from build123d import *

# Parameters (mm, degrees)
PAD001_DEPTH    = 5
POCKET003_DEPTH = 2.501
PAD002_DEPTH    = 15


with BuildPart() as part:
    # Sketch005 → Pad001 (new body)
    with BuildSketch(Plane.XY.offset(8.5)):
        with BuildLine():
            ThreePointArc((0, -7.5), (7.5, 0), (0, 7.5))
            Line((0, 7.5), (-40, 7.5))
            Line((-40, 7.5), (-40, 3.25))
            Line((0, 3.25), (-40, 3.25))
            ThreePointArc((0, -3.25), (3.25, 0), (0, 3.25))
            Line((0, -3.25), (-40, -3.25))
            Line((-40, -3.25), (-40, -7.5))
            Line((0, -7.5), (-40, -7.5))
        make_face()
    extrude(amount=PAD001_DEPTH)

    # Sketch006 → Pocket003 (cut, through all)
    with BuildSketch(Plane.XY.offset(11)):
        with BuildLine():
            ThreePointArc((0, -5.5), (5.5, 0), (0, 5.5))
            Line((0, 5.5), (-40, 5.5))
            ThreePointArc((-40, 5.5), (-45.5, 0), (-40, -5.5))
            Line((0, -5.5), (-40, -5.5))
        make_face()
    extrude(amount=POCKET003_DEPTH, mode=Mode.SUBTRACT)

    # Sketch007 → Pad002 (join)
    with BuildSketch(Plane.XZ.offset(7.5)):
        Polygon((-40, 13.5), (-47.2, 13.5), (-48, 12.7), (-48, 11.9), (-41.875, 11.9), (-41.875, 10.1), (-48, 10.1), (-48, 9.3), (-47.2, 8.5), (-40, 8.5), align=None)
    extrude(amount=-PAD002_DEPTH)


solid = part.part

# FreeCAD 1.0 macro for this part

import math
import FreeCAD as App
import Part
import Sketcher

doc = App.newDocument("Part")
body = doc.addObject("PartDesign::Body", "Body")

# Sketch on XY plane
sketch1 = body.newObject("Sketcher::SketchObject", "Sketch")
sketch1.AttachmentSupport = (doc.getObject("XY_Plane"), [""])
sketch1.MapMode = "FlatFace"
sketch1.AttachmentOffset = App.Placement(App.Vector(0, 0, 8.5), App.Rotation())
sketch1.addGeometry(Part.ArcOfCircle(Part.Circle(App.Vector(0, 0, 0), App.Vector(0, 0, 1), 7.5), math.radians(-90), math.radians(90)), False)
sketch1.addGeometry(Part.LineSegment(App.Vector(0, 7.5, 0), App.Vector(-40, 7.5, 0)), False)
sketch1.addGeometry(Part.LineSegment(App.Vector(-40, 7.5, 0), App.Vector(-40, 3.2, 0)), False)
sketch1.addGeometry(Part.LineSegment(App.Vector(-40, 3.2, 0), App.Vector(0, 3.2, 0)), False)
sketch1.addGeometry(Part.ArcOfCircle(Part.Circle(App.Vector(0, 0, 0), App.Vector(0, 0, 1), 3.2), math.radians(-90), math.radians(90)), False)
sketch1.addGeometry(Part.LineSegment(App.Vector(0, -3.2, 0), App.Vector(-40, -3.2, 0)), False)
sketch1.addGeometry(Part.LineSegment(App.Vector(-40, -3.2, 0), App.Vector(-40, -7.5, 0)), False)
sketch1.addGeometry(Part.LineSegment(App.Vector(-40, -7.5, 0), App.Vector(0, -7.5, 0)), False)
sketch1.addConstraint(Sketcher.Constraint("Tangent", 0, 2, 1, 1))
sketch1.addConstraint(Sketcher.Constraint("Coincident", 1, 2, 2, 1))
sketch1.addConstraint(Sketcher.Constraint("Coincident", 2, 2, 3, 1))
sketch1.addConstraint(Sketcher.Constraint("Tangent", 3, 2, 4, 2))
sketch1.addConstraint(Sketcher.Constraint("Tangent", 4, 1, 5, 1))
sketch1.addConstraint(Sketcher.Constraint("Coincident", 5, 2, 6, 1))
sketch1.addConstraint(Sketcher.Constraint("Coincident", 6, 2, 7, 1))
sketch1.addConstraint(Sketcher.Constraint("Tangent", 7, 2, 0, 1))
sketch1.addConstraint(Sketcher.Constraint("Horizontal", 1))
sketch1.addConstraint(Sketcher.Constraint("Vertical", 2))
sketch1.addConstraint(Sketcher.Constraint("Horizontal", 3))
sketch1.addConstraint(Sketcher.Constraint("Horizontal", 5))
sketch1.addConstraint(Sketcher.Constraint("Vertical", 6))
sketch1.addConstraint(Sketcher.Constraint("Horizontal", 7))
sketch1.addConstraint(Sketcher.Constraint("Coincident", 0, 3, -1, 1))
sketch1.addConstraint(Sketcher.Constraint("Coincident", 4, 3, -1, 1))
sketch1.addConstraint(Sketcher.Constraint("Vertical", 2, 2, 5, 2))
sketch1.addConstraint(Sketcher.Constraint("Radius", 0, 7.5))
sketch1.addConstraint(Sketcher.Constraint("DistanceX", 1, 2, 1, 1, 40.0))
sketch1.addConstraint(Sketcher.Constraint("Radius", 4, 3.25))
pad1 = body.newObject("PartDesign::Pad", "Pad")
pad1.Profile = sketch1
pad1.Length = 5

# Sketch on XY plane
sketch2 = body.newObject("Sketcher::SketchObject", "Sketch001")
sketch2.AttachmentSupport = (doc.getObject("XY_Plane"), [""])
sketch2.MapMode = "FlatFace"
sketch2.AttachmentOffset = App.Placement(App.Vector(0, 0, 11), App.Rotation())
sketch2.addGeometry(Part.ArcOfCircle(Part.Circle(App.Vector(0, 0, 0), App.Vector(0, 0, 1), 6), math.radians(-90), math.radians(90)), False)
sketch2.addGeometry(Part.LineSegment(App.Vector(0, 6, 0), App.Vector(-40, 6, 0)), False)
sketch2.addGeometry(Part.ArcOfCircle(Part.Circle(App.Vector(-40, 0, 0), App.Vector(0, 0, 1), 6), math.radians(90), math.radians(270)), False)
sketch2.addGeometry(Part.LineSegment(App.Vector(-40, -6, 0), App.Vector(0, -6, 0)), False)
sketch2.addConstraint(Sketcher.Constraint("Tangent", 0, 2, 1, 1))
sketch2.addConstraint(Sketcher.Constraint("Tangent", 1, 2, 2, 1))
sketch2.addConstraint(Sketcher.Constraint("Tangent", 2, 2, 3, 1))
sketch2.addConstraint(Sketcher.Constraint("Tangent", 3, 2, 0, 1))
sketch2.addConstraint(Sketcher.Constraint("Horizontal", 1))
sketch2.addConstraint(Sketcher.Constraint("Horizontal", 3))
sketch2.addConstraint(Sketcher.Constraint("Coincident", 0, 3, -1, 1))
sketch2.addConstraint(Sketcher.Constraint("Radius", 0, 5.5))
sketch2.addConstraint(Sketcher.Constraint("DistanceX", 1, 2, 1, 1, 40.0))
pocket1 = body.newObject("PartDesign::Pocket", "Pocket")
pocket1.Profile = sketch2
pocket1.Type = "ThroughAll"
pocket1.Reversed = True

# Sketch on XZ plane
sketch3 = body.newObject("Sketcher::SketchObject", "Sketch002")
sketch3.AttachmentSupport = (doc.getObject("XZ_Plane"), [""])
sketch3.MapMode = "FlatFace"
sketch3.AttachmentOffset = App.Placement(App.Vector(0, 0, 7.5), App.Rotation())
sketch3.addGeometry(Part.LineSegment(App.Vector(-40, 13.5, 0), App.Vector(-47.2, 13.5, 0)), False)
sketch3.addGeometry(Part.LineSegment(App.Vector(-47.2, 13.5, 0), App.Vector(-48, 12.7, 0)), False)
sketch3.addGeometry(Part.LineSegment(App.Vector(-48, 12.7, 0), App.Vector(-48, 11.9, 0)), False)
sketch3.addGeometry(Part.LineSegment(App.Vector(-48, 11.9, 0), App.Vector(-41.9, 11.9, 0)), False)
sketch3.addGeometry(Part.LineSegment(App.Vector(-41.9, 11.9, 0), App.Vector(-41.9, 10.1, 0)), False)
sketch3.addGeometry(Part.LineSegment(App.Vector(-41.9, 10.1, 0), App.Vector(-48, 10.1, 0)), False)
sketch3.addGeometry(Part.LineSegment(App.Vector(-48, 10.1, 0), App.Vector(-48, 9.3, 0)), False)
sketch3.addGeometry(Part.LineSegment(App.Vector(-48, 9.3, 0), App.Vector(-47.2, 8.5, 0)), False)
sketch3.addGeometry(Part.LineSegment(App.Vector(-47.2, 8.5, 0), App.Vector(-40, 8.5, 0)), False)
sketch3.addGeometry(Part.LineSegment(App.Vector(-40, 8.5, 0), App.Vector(-40, 13.5, 0)), False)
sketch3.addConstraint(Sketcher.Constraint("Coincident", 0, 2, 1, 1))
sketch3.addConstraint(Sketcher.Constraint("Coincident", 1, 2, 2, 1))
sketch3.addConstraint(Sketcher.Constraint("Coincident", 2, 2, 3, 1))
sketch3.addConstraint(Sketcher.Constraint("Coincident", 3, 2, 4, 1))
sketch3.addConstraint(Sketcher.Constraint("Coincident", 4, 2, 5, 1))
sketch3.addConstraint(Sketcher.Constraint("Coincident", 5, 2, 6, 1))
sketch3.addConstraint(Sketcher.Constraint("Coincident", 6, 2, 7, 1))
sketch3.addConstraint(Sketcher.Constraint("Coincident", 7, 2, 8, 1))
sketch3.addConstraint(Sketcher.Constraint("Coincident", 8, 2, 9, 1))
sketch3.addConstraint(Sketcher.Constraint("Coincident", 9, 2, 0, 1))
sketch3.addConstraint(Sketcher.Constraint("Horizontal", 0))
sketch3.addConstraint(Sketcher.Constraint("Vertical", 2))
sketch3.addConstraint(Sketcher.Constraint("Horizontal", 3))
sketch3.addConstraint(Sketcher.Constraint("Vertical", 4))
sketch3.addConstraint(Sketcher.Constraint("Horizontal", 5))
sketch3.addConstraint(Sketcher.Constraint("Vertical", 6))
sketch3.addConstraint(Sketcher.Constraint("Horizontal", 8))
sketch3.addConstraint(Sketcher.Constraint("Vertical", 9))
sketch3.addConstraint(Sketcher.Constraint("Perpendicular", 1, 7))
sketch3.addConstraint(Sketcher.Constraint("Vertical", 2, 2, 5, 2))
sketch3.addConstraint(Sketcher.Constraint("Vertical", 0, 2, 7, 2))
sketch3.addConstraint(Sketcher.Constraint("Equal", 2, 6))
sketch3.addConstraint(Sketcher.Constraint("Equal", 1, 7))
sketch3.addConstraint(Sketcher.Constraint("DistanceY", 9, 1, 9, 2, 5.0))
sketch3.addConstraint(Sketcher.Constraint("DistanceX", 0, 2, 0, 1, 7.2))
sketch3.addConstraint(Sketcher.Constraint("DistanceY", 2, 2, 2, 1, 0.8))
sketch3.addConstraint(Sketcher.Constraint("DistanceY", 4, 2, 4, 1, 1.8))
sketch3.addConstraint(Sketcher.Constraint("DistanceX", 1, 2, -1, 1, 48.0))
sketch3.addConstraint(Sketcher.Constraint("DistanceY", -1, 1, 0, 2, 13.5))
sketch3.addConstraint(Sketcher.Constraint("DistanceX", 3, 1, 3, 2, 6.125))
pad2 = body.newObject("PartDesign::Pad", "Pad001")
pad2.Profile = sketch3
pad2.Length = 15
pad2.Reversed = True

doc.recompute()
